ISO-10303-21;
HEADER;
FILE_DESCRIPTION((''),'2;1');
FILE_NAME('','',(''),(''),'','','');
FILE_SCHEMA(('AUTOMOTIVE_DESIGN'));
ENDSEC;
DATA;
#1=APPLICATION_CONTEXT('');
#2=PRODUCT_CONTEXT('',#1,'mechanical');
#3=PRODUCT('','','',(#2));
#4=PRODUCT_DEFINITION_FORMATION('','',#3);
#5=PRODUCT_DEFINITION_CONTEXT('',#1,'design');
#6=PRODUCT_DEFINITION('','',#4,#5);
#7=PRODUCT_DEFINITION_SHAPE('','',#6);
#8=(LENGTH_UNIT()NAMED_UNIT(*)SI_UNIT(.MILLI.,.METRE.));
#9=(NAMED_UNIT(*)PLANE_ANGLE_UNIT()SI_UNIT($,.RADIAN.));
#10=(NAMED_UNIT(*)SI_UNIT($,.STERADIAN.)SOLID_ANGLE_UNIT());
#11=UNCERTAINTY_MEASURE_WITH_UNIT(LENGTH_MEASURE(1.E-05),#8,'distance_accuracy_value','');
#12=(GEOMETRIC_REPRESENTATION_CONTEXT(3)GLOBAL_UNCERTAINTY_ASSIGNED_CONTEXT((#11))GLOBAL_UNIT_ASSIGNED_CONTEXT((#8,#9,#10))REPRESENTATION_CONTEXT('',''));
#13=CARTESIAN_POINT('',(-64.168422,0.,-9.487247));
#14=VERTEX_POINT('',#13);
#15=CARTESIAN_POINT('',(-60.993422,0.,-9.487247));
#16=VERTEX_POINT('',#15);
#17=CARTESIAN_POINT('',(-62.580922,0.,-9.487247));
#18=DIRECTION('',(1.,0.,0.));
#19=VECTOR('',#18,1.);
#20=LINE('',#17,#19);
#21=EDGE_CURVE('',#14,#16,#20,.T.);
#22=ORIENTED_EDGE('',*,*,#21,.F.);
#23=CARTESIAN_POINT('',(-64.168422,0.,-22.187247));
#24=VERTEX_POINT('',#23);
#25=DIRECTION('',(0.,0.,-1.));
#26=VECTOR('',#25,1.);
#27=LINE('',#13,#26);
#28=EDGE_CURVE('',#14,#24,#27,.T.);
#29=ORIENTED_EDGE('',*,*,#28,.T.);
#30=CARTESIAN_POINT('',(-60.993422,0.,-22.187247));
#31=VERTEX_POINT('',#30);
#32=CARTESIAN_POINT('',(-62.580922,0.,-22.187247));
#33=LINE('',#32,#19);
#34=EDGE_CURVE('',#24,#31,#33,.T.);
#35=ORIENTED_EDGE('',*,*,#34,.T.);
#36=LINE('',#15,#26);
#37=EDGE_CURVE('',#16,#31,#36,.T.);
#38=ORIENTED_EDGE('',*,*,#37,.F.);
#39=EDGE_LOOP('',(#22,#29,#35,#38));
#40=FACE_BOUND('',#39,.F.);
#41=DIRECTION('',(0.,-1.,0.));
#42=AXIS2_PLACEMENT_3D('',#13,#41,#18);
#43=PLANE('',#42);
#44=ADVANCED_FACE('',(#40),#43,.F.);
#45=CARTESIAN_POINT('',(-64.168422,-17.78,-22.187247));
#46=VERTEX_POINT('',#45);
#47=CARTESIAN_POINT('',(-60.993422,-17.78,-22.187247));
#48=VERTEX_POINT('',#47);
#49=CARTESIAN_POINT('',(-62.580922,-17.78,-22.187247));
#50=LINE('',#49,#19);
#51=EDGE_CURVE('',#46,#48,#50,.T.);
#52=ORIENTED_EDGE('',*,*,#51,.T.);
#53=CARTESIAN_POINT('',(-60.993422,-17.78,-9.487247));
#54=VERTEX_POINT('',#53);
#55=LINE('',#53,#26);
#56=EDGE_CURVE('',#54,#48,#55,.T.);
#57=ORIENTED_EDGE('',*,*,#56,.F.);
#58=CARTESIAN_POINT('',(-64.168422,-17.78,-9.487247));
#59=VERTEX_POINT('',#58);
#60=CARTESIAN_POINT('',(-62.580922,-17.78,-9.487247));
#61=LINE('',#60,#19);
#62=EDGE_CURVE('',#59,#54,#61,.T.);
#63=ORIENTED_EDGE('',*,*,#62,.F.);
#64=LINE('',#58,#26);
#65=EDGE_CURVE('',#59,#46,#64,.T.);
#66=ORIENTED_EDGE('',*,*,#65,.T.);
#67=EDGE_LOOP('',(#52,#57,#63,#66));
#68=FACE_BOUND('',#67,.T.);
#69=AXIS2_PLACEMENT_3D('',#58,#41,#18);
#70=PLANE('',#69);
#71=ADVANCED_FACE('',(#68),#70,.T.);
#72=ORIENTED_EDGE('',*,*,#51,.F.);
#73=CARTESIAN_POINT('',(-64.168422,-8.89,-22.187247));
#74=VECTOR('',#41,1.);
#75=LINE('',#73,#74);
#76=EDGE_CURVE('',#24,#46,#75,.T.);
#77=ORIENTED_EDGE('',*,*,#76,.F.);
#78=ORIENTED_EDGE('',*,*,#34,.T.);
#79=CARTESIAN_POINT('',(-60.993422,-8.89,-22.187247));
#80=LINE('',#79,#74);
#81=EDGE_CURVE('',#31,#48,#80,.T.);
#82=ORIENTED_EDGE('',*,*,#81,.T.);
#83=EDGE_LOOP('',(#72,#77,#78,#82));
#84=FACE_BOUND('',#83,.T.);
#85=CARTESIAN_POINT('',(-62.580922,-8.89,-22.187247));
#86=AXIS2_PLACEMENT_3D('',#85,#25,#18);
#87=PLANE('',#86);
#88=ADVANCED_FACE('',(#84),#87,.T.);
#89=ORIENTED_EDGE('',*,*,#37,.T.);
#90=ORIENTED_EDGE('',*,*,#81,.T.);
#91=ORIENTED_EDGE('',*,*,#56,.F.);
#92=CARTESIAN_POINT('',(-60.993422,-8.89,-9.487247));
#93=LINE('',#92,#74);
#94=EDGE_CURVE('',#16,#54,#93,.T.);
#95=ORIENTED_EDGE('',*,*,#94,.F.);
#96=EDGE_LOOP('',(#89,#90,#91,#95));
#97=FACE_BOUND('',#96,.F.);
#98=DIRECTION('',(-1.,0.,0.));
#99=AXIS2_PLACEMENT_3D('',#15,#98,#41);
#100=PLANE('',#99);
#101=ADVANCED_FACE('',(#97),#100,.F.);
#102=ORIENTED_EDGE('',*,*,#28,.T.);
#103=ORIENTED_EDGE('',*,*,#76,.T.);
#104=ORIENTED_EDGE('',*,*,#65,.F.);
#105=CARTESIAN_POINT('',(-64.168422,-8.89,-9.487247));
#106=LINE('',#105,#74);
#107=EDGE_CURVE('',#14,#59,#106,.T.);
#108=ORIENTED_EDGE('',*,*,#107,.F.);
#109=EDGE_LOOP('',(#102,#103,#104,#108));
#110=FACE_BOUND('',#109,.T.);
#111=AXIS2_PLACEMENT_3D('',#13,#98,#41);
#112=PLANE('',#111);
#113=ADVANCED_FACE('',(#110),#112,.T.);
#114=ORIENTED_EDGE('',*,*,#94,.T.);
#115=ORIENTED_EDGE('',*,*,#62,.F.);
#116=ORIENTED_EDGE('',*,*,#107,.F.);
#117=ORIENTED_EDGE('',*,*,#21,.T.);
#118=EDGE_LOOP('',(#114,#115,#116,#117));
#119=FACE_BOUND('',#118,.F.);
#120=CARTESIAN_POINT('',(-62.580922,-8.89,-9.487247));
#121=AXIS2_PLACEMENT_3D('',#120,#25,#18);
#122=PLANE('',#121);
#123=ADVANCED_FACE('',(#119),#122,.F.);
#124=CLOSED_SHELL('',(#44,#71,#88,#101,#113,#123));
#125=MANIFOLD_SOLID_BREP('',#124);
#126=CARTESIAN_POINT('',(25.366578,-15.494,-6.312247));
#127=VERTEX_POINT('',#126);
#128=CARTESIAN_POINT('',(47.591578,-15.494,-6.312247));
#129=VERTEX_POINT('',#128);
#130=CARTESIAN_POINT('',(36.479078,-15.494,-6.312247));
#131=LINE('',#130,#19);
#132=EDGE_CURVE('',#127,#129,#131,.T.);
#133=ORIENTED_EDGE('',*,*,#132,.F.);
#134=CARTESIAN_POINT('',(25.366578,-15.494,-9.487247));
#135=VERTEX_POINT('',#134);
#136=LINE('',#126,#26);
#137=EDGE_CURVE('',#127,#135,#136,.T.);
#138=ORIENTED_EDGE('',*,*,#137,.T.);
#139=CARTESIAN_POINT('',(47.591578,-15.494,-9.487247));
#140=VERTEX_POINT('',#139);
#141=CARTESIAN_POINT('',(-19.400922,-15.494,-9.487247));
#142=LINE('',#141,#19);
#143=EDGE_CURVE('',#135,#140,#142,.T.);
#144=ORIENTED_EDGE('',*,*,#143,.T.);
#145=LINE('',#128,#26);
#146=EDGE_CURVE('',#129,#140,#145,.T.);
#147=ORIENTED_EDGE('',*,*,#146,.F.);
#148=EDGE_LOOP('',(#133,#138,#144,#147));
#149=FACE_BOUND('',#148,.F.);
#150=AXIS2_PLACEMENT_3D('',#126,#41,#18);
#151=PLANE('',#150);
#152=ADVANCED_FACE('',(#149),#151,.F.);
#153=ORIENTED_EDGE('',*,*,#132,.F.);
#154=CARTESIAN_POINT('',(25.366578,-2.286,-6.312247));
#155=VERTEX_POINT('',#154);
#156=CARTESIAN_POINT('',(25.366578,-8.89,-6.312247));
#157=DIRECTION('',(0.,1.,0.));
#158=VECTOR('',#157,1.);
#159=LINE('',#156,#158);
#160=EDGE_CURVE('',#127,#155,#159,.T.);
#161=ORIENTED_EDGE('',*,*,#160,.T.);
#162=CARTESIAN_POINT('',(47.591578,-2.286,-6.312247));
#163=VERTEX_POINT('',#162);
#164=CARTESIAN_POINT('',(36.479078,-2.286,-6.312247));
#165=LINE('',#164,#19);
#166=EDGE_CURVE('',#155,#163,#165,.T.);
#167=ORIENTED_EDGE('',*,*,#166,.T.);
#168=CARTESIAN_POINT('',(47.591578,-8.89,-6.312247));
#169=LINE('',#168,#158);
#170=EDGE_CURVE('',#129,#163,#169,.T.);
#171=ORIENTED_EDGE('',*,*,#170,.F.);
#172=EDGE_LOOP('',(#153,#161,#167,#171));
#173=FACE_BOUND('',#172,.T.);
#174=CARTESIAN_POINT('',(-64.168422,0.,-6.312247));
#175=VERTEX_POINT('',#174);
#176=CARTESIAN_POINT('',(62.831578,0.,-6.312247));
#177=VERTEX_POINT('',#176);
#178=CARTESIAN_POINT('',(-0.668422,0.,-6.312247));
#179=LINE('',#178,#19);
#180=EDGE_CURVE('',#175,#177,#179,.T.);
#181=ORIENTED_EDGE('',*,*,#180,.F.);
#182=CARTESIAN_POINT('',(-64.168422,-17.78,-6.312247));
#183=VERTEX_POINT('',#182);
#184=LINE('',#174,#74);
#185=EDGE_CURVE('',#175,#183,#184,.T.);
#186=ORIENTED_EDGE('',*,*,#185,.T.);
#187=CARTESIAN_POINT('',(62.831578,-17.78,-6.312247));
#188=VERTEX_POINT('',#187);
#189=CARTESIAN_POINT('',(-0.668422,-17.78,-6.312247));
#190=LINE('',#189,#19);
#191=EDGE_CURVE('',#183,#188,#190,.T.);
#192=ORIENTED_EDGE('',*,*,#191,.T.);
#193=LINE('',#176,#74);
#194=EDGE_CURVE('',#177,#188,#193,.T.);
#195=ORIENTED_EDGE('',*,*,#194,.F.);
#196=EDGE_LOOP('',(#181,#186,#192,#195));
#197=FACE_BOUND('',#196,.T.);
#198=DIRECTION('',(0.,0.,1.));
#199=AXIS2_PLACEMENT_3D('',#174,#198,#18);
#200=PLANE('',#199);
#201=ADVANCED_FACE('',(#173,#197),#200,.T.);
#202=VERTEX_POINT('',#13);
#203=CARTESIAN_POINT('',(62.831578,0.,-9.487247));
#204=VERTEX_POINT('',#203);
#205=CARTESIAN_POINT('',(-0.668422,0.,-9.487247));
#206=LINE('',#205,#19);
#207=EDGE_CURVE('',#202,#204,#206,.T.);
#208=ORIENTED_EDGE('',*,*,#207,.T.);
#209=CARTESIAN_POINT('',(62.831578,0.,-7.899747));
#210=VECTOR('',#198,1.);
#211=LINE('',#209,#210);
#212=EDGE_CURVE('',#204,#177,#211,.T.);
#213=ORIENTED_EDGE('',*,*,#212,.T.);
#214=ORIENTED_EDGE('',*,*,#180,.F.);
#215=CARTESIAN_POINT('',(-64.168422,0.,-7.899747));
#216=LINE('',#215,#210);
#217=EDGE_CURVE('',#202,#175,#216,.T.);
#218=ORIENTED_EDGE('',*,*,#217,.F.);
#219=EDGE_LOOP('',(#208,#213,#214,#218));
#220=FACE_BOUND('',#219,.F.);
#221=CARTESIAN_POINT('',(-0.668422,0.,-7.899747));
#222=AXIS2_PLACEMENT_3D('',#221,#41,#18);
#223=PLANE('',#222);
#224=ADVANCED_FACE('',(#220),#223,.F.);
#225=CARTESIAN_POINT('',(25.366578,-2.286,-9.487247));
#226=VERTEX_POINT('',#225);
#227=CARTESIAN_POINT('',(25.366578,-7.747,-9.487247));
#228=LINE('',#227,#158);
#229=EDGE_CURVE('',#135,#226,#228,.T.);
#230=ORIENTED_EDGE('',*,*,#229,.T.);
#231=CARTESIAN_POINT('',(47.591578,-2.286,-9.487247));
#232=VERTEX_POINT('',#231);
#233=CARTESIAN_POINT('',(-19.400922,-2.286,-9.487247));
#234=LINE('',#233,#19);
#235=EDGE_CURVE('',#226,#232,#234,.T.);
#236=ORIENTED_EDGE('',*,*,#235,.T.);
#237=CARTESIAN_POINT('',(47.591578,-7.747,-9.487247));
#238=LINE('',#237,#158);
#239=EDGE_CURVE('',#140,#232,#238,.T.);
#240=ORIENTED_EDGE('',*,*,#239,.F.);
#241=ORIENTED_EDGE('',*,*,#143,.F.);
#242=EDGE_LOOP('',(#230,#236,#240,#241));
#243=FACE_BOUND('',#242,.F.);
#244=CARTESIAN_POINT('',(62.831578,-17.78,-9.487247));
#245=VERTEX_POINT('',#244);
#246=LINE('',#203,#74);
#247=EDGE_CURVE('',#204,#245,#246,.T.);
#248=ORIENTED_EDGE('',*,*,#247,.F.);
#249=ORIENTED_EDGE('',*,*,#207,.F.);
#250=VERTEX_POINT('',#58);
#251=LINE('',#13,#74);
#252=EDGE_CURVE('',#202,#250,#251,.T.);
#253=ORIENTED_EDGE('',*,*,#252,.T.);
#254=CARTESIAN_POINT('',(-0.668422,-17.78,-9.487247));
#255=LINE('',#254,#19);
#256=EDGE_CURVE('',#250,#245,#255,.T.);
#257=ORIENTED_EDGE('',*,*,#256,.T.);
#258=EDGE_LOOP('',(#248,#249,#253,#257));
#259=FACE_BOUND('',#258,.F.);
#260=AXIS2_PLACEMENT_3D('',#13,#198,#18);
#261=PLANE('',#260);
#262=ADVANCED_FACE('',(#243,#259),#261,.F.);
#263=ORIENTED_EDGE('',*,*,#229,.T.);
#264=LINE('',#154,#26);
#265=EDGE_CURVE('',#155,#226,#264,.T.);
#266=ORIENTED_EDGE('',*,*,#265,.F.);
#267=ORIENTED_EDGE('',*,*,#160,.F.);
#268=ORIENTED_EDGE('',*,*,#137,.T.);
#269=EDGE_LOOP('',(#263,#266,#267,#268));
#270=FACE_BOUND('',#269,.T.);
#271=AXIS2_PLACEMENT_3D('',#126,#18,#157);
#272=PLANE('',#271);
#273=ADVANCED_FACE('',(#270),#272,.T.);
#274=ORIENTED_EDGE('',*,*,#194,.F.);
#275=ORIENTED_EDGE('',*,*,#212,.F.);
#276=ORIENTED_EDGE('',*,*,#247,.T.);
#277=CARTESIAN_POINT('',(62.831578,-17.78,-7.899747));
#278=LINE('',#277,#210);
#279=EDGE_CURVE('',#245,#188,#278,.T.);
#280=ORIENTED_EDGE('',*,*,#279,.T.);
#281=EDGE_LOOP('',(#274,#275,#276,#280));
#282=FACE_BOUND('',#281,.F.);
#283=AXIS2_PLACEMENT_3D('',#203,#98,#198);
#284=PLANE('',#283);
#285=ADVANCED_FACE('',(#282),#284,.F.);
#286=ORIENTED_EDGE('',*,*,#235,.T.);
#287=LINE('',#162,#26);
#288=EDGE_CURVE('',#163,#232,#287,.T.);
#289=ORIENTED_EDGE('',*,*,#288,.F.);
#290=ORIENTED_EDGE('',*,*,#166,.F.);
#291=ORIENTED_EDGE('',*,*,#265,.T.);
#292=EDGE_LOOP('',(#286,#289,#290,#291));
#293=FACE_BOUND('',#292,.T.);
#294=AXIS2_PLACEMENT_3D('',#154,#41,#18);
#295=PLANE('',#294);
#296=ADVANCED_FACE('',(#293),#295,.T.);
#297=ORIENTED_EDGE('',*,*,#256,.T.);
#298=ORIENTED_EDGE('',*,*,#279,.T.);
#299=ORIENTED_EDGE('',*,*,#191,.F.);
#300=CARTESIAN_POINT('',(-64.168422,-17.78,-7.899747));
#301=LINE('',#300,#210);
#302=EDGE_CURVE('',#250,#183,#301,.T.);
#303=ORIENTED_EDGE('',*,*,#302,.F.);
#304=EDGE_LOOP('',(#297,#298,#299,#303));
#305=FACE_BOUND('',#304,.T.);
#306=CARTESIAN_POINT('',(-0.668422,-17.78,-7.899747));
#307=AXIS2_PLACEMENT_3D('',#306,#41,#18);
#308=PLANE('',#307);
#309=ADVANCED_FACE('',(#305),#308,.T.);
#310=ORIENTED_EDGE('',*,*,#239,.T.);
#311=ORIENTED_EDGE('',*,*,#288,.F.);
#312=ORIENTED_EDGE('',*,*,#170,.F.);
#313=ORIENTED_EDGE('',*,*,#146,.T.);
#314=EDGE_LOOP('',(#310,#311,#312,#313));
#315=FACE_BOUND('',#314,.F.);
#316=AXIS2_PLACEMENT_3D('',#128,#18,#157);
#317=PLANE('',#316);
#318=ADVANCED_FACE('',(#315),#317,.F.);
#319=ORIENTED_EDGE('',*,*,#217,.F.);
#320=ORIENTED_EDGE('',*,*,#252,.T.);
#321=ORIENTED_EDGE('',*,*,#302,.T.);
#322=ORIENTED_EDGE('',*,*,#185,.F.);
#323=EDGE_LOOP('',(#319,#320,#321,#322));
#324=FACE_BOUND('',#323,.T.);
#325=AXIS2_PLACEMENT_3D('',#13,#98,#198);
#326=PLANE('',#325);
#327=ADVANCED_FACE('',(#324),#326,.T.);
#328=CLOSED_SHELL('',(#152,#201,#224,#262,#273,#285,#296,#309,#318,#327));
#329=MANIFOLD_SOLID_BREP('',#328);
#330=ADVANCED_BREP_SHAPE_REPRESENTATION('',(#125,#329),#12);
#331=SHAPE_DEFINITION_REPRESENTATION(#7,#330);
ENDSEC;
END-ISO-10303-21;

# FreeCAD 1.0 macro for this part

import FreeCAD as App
import Part
import Sketcher

V = App.Vector
Q = App.Units.Quantity

doc = App.newDocument("Part")
body = doc.addObject("PartDesign::Body", "Body")

# Sketch on XZ plane
sketch1 = body.newObject("Sketcher::SketchObject", "Sketch")
sketch1.AttachmentSupport = (doc.getObject("XZ_Plane"), [""])
sketch1.MapMode = "FlatFace"
sketch1.addGeometry([
    Part.LineSegment(V(-64.168422, -6.312247, 0), V(-64.168422, -9.487247, 0)),
    Part.LineSegment(V(-64.168422, -9.487247, 0), V(62.831578, -9.487247, 0)),
    Part.LineSegment(V(62.831578, -9.487247, 0), V(62.831578, -6.312247, 0)),
    Part.LineSegment(V(62.831578, -6.312247, 0), V(-64.168422, -6.312247, 0)),
], False)
sketch1.addConstraint([
    Sketcher.Constraint("Coincident", 0, 2, 1, 1),
    Sketcher.Constraint("Coincident", 1, 2, 2, 1),
    Sketcher.Constraint("Coincident", 2, 2, 3, 1),
    Sketcher.Constraint("Coincident", 3, 2, 0, 1),
    Sketcher.Constraint("Vertical", 0),
    Sketcher.Constraint("Horizontal", 1),
    Sketcher.Constraint("Vertical", 2),
    Sketcher.Constraint("Horizontal", 3),
    Sketcher.Constraint("DistanceX", 1, 1, 1, 2, Q("5 in")),
    Sketcher.Constraint("DistanceY", 0, 2, 0, 1, Q("0.125 in")),
    Sketcher.Constraint("DistanceX", 0, 2, -1, 1, Q("64.168422 mm")),
    Sketcher.Constraint("DistanceY", 0, 2, -1, 1, Q("9.487247 mm")),
])
pad1 = body.newObject("PartDesign::Pad", "Pad")
pad1.Profile = sketch1
pad1.Length = Q("0.7 in")

# Sketch on XY plane
sketch2 = body.newObject("Sketcher::SketchObject", "Sketch001")
sketch2.AttachmentSupport = (doc.getObject("XY_Plane"), [""])
sketch2.MapMode = "FlatFace"
sketch2.AttachmentOffset = App.Placement(V(0, 0, -6.312247), App.Rotation())
sketch2.addGeometry([
    Part.LineSegment(V(25.366578, -2.286, 0), V(25.366578, -15.494, 0)),
    Part.LineSegment(V(25.366578, -15.494, 0), V(47.591578, -15.494, 0)),
    Part.LineSegment(V(47.591578, -15.494, 0), V(47.591578, -2.286, 0)),
    Part.LineSegment(V(47.591578, -2.286, 0), V(25.366578, -2.286, 0)),
], False)
sketch2.addConstraint([
    Sketcher.Constraint("Coincident", 0, 2, 1, 1),
    Sketcher.Constraint("Coincident", 1, 2, 2, 1),
    Sketcher.Constraint("Coincident", 2, 2, 3, 1),
    Sketcher.Constraint("Coincident", 3, 2, 0, 1),
    Sketcher.Constraint("Vertical", 0),
    Sketcher.Constraint("Horizontal", 1),
    Sketcher.Constraint("Vertical", 2),
    Sketcher.Constraint("Horizontal", 3),
    Sketcher.Constraint("DistanceY", 0, 2, 0, 1, Q("0.52 in")),
    Sketcher.Constraint("DistanceX", 1, 1, 1, 2, Q("0.875 in")),
    Sketcher.Constraint("DistanceY", 0, 2, -1, 1, Q("0.61 in")),
    Sketcher.Constraint("DistanceX", -1, 1, 0, 2, Q("25.366578 mm")),
])
pocket1 = body.newObject("PartDesign::Pocket", "Pocket")
pocket1.Profile = sketch2
pocket1.Length = Q("1 in")
body2 = doc.addObject("PartDesign::Body", "Body001")

# Sketch on XY plane
sketch3 = body2.newObject("Sketcher::SketchObject", "Sketch002")
sketch3.AttachmentSupport = (doc.getObject("XY_Plane001"), [""])
sketch3.MapMode = "FlatFace"
sketch3.AttachmentOffset = App.Placement(V(0, 0, -9.487247), App.Rotation())
sketch3.addGeometry([
    Part.LineSegment(V(-64.168422, -17.78, 0), V(-64.168422, 0, 0)),
    Part.LineSegment(V(-64.168422, 0, 0), V(-60.993422, 0, 0)),
    Part.LineSegment(V(-60.993422, 0, 0), V(-60.993422, -17.78, 0)),
    Part.LineSegment(V(-60.993422, -17.78, 0), V(-64.168422, -17.78, 0)),
], False)
sketch3.addConstraint([
    Sketcher.Constraint("Coincident", 0, 2, 1, 1),
    Sketcher.Constraint("Coincident", 1, 2, 2, 1),
    Sketcher.Constraint("Coincident", 2, 2, 3, 1),
    Sketcher.Constraint("Coincident", 3, 2, 0, 1),
    Sketcher.Constraint("Vertical", 0),
    Sketcher.Constraint("Horizontal", 1),
    Sketcher.Constraint("Vertical", 2),
    Sketcher.Constraint("Horizontal", 3),
    Sketcher.Constraint("PointOnObject", 0, 2, -1),
    Sketcher.Constraint("DistanceY", 0, 1, 0, 2, Q("0.7 in")),
    Sketcher.Constraint("DistanceX", 1, 1, 1, 2, Q("0.125 in")),
    Sketcher.Constraint("DistanceX", 0, 2, -1, 1, Q("64.168422 mm")),
])
pad2 = body2.newObject("PartDesign::Pad", "Pad001")
pad2.Profile = sketch3
pad2.Length = Q("0.5 in")
pad2.Reversed = True

doc.recompute()
